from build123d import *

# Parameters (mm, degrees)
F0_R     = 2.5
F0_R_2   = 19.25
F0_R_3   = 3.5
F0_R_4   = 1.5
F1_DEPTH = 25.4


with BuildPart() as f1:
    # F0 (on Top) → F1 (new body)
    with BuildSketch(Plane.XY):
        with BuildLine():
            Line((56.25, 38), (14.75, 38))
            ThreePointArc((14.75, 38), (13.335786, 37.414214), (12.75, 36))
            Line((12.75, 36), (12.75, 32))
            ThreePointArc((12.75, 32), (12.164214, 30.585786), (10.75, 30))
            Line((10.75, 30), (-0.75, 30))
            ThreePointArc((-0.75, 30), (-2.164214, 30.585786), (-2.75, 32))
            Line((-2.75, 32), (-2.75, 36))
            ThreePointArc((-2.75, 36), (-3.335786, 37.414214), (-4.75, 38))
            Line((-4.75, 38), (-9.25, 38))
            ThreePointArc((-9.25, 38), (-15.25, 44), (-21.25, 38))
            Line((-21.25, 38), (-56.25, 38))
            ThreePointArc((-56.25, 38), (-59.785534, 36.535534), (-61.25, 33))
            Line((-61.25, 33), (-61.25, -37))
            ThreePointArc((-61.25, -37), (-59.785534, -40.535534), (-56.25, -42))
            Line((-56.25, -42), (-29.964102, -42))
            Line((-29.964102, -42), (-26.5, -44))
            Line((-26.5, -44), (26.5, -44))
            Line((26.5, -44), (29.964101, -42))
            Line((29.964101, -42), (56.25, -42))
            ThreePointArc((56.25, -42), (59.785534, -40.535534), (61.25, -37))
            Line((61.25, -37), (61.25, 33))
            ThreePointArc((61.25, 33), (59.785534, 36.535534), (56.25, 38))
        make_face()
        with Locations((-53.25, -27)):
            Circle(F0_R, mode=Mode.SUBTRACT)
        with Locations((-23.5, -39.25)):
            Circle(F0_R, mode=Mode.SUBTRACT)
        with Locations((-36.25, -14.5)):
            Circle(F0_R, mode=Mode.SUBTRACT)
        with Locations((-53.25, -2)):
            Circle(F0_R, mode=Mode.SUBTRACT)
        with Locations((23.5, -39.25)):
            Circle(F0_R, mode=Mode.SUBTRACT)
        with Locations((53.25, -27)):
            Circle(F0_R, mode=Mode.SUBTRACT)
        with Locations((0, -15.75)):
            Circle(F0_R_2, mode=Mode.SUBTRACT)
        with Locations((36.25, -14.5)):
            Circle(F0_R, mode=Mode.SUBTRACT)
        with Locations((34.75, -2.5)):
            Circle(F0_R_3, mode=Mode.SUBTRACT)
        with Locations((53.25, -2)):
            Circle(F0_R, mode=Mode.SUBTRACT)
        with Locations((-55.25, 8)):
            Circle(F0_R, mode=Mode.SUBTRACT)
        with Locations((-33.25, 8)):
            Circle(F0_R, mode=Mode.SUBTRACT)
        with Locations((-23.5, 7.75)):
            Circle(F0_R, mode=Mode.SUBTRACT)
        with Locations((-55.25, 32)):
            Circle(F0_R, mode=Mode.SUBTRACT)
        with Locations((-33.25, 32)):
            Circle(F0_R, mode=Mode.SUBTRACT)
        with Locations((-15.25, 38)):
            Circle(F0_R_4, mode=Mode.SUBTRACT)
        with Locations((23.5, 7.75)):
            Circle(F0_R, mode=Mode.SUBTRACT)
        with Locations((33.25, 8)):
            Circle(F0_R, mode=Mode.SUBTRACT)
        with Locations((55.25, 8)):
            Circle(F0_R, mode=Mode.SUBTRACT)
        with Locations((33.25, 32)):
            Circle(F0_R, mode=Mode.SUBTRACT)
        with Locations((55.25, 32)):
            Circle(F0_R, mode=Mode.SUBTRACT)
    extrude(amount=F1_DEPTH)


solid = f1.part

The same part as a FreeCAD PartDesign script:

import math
import FreeCAD as App
import Part
import Sketcher

V = App.Vector
Q = App.Units.Quantity

doc = App.newDocument("Part")
params = doc.addObject("Spreadsheet::Sheet", "Params")
for row, (alias, value) in enumerate([
    ("sketch1_diameter", "5 mm"),
    ("sketch1_diameter2", "7 mm"),
    ("sketch1_diameter3", "3 mm"),
    ("sketch1_radius", "1.999999 mm"),
    ("sketch1_radius2", "6 mm"),
    ("pad1_length", "25.4 mm"),
], start=1):
    params.set(f"A{row}", alias)
    params.set(f"B{row}", "=" + value)
    params.setAlias(f"B{row}", alias)

body = doc.addObject("PartDesign::Body", "Body")

# Sketch on XY plane
sketch1 = body.newObject("Sketcher::SketchObject", "Sketch")
sketch1.AttachmentSupport = (doc.getObject("XY_Plane"), [""])
sketch1.MapMode = "FlatFace"
sketch1.addGeometry(Part.LineSegment(V(56.25, 38, 0), V(14.75, 38, 0)), False)
sketch1.addGeometry(Part.ArcOfCircle(Part.Circle(V(14.749999, 36.000001, 0), V(0, 0, 1), 1.999999), math.radians(89.999957), math.radians(180.000043)), False)
sketch1.addGeometry(Part.LineSegment(V(12.75, 36, 0), V(12.75, 32, 0)), False)
sketch1.addGeometry(Part.ArcOfCircle(Part.Circle(V(10.750001, 31.999999, 0), V(0, 0, 1), 1.999999), math.radians(-90.000043), math.radians(0.000043)), False)
sketch1.addGeometry(Part.LineSegment(V(10.75, 30, 0), V(-0.75, 30, 0)), False)
sketch1.addGeometry(Part.ArcOfCircle(Part.Circle(V(-0.750001, 31.999999, 0), V(0, 0, 1), 1.999999), math.radians(179.999957), math.radians(270.000043)), False)
sketch1.addGeometry(Part.LineSegment(V(-2.75, 32, 0), V(-2.75, 36, 0)), False)
sketch1.addGeometry(Part.ArcOfCircle(Part.Circle(V(-4.749999, 36.000001, 0), V(0, 0, 1), 1.999999), math.radians(-0.000043), math.radians(90.000043)), False)
sketch1.addGeometry(Part.LineSegment(V(-4.75, 38, 0), V(-9.25, 38, 0)), False)
sketch1.addGeometry(Part.ArcOfCircle(Part.Circle(V(-15.25, 38, 0), V(0, 0, 1), 6), math.radians(0), math.radians(180)), False)
sketch1.addGeometry(Part.LineSegment(V(-21.25, 38, 0), V(-56.25, 38, 0)), False)
sketch1.addGeometry(Part.ArcOfCircle(Part.Circle(V(-56.25, 33, 0), V(0, 0, 1), 5), math.radians(89.999996), math.radians(180.000004)), False)
sketch1.addGeometry(Part.LineSegment(V(-61.25, 33, 0), V(-61.25, -37, 0)), False)
sketch1.addGeometry(Part.ArcOfCircle(Part.Circle(V(-56.25, -37, 0), V(0, 0, 1), 5), math.radians(179.999996), math.radians(270.000004)), False)
sketch1.addGeometry(Part.LineSegment(V(-56.25, -42, 0), V(-29.964102, -42, 0)), False)
sketch1.addGeometry(Part.LineSegment(V(-29.964102, -42, 0), V(-26.5, -44, 0)), False)
sketch1.addGeometry(Part.LineSegment(V(-26.5, -44, 0), V(26.5, -44, 0)), False)
sketch1.addGeometry(Part.LineSegment(V(26.5, -44, 0), V(29.964101, -42, 0)), False)
sketch1.addGeometry(Part.LineSegment(V(29.964101, -42, 0), V(56.25, -42, 0)), False)
sketch1.addGeometry(Part.ArcOfCircle(Part.Circle(V(56.25, -37, 0), V(0, 0, 1), 5), math.radians(-90.000004), math.radians(0.000004)), False)
sketch1.addGeometry(Part.LineSegment(V(61.25, -37, 0), V(61.25, 33, 0)), False)
sketch1.addGeometry(Part.ArcOfCircle(Part.Circle(V(56.25, 33, 0), V(0, 0, 1), 5), math.radians(-0.000004), math.radians(90.000004)), False)
sketch1.addGeometry(Part.Circle(V(-53.25, -27, 0), V(0, 0, 1), 2.5), False)
sketch1.addGeometry(Part.Circle(V(-23.5, -39.25, 0), V(0, 0, 1), 2.5), False)
sketch1.addGeometry(Part.Circle(V(-36.25, -14.5, 0), V(0, 0, 1), 2.5), False)
sketch1.addGeometry(Part.Circle(V(-53.25, -2, 0), V(0, 0, 1), 2.5), False)
sketch1.addGeometry(Part.Circle(V(23.5, -39.25, 0), V(0, 0, 1), 2.5), False)
sketch1.addGeometry(Part.Circle(V(53.25, -27, 0), V(0, 0, 1), 2.5), False)
sketch1.addGeometry(Part.Circle(V(0, -15.75, 0), V(0, 0, 1), 19.25), False)
sketch1.addGeometry(Part.Circle(V(36.25, -14.5, 0), V(0, 0, 1), 2.5), False)
sketch1.addGeometry(Part.Circle(V(34.75, -2.5, 0), V(0, 0, 1), 3.5), False)
sketch1.addGeometry(Part.Circle(V(53.25, -2, 0), V(0, 0, 1), 2.5), False)
sketch1.addGeometry(Part.Circle(V(-55.25, 8, 0), V(0, 0, 1), 2.5), False)
sketch1.addGeometry(Part.Circle(V(-33.25, 8, 0), V(0, 0, 1), 2.5), False)
sketch1.addGeometry(Part.Circle(V(-23.5, 7.75, 0), V(0, 0, 1), 2.5), False)
sketch1.addGeometry(Part.Circle(V(-55.25, 32, 0), V(0, 0, 1), 2.5), False)
sketch1.addGeometry(Part.Circle(V(-33.25, 32, 0), V(0, 0, 1), 2.5), False)
sketch1.addGeometry(Part.Circle(V(-15.25, 38, 0), V(0, 0, 1), 1.5), False)
sketch1.addGeometry(Part.Circle(V(23.5, 7.75, 0), V(0, 0, 1), 2.5), False)
sketch1.addGeometry(Part.Circle(V(33.25, 8, 0), V(0, 0, 1), 2.5), False)
sketch1.addGeometry(Part.Circle(V(55.25, 8, 0), V(0, 0, 1), 2.5), False)
sketch1.addGeometry(Part.Circle(V(33.25, 32, 0), V(0, 0, 1), 2.5), False)
sketch1.addGeometry(Part.Circle(V(55.25, 32, 0), V(0, 0, 1), 2.5), False)
sketch1.addConstraint(Sketcher.Constraint("Tangent", 0, 2, 1, 1))
sketch1.addConstraint(Sketcher.Constraint("Tangent", 1, 2, 2, 1))
sketch1.addConstraint(Sketcher.Constraint("Tangent", 2, 2, 3, 2))
sketch1.addConstraint(Sketcher.Constraint("Tangent", 3, 1, 4, 1))
sketch1.addConstraint(Sketcher.Constraint("Tangent", 4, 2, 5, 2))
sketch1.addConstraint(Sketcher.Constraint("Tangent", 5, 1, 6, 1))
sketch1.addConstraint(Sketcher.Constraint("Tangent", 6, 2, 7, 1))
sketch1.addConstraint(Sketcher.Constraint("Tangent", 7, 2, 8, 1))
sketch1.addConstraint(Sketcher.Constraint("Coincident", 8, 2, 9, 1))
sketch1.addConstraint(Sketcher.Constraint("Coincident", 9, 2, 10, 1))
sketch1.addConstraint(Sketcher.Constraint("Tangent", 10, 2, 11, 1))
sketch1.addConstraint(Sketcher.Constraint("Tangent", 11, 2, 12, 1))
sketch1.addConstraint(Sketcher.Constraint("Tangent", 12, 2, 13, 1))
sketch1.addConstraint(Sketcher.Constraint("Tangent", 13, 2, 14, 1))
sketch1.addConstraint(Sketcher.Constraint("Coincident", 14, 2, 15, 1))
sketch1.addConstraint(Sketcher.Constraint("Coincident", 15, 2, 16, 1))
sketch1.addConstraint(Sketcher.Constraint("Coincident", 16, 2, 17, 1))
sketch1.addConstraint(Sketcher.Constraint("Coincident", 17, 2, 18, 1))
sketch1.addConstraint(Sketcher.Constraint("Tangent", 18, 2, 19, 1))
sketch1.addConstraint(Sketcher.Constraint("Tangent", 19, 2, 20, 1))
sketch1.addConstraint(Sketcher.Constraint("Tangent", 20, 2, 21, 1))
sketch1.addConstraint(Sketcher.Constraint("Tangent", 21, 2, 0, 1))
sketch1.addConstraint(Sketcher.Constraint("Horizontal", 0))
sketch1.addConstraint(Sketcher.Constraint("Vertical", 2))
sketch1.addConstraint(Sketcher.Constraint("Horizontal", 4))
sketch1.addConstraint(Sketcher.Constraint("Vertical", 6))
sketch1.addConstraint(Sketcher.Constraint("Horizontal", 8))
sketch1.addConstraint(Sketcher.Constraint("Horizontal", 10))
sketch1.addConstraint(Sketcher.Constraint("Vertical", 12))
sketch1.addConstraint(Sketcher.Constraint("Horizontal", 14))
sketch1.addConstraint(Sketcher.Constraint("Horizontal", 16))
sketch1.addConstraint(Sketcher.Constraint("Horizontal", 18))
sketch1.addConstraint(Sketcher.Constraint("Vertical", 20))
sketch1.addConstraint(Sketcher.Constraint("Coincident", 37, 3, 9, 3))
sketch1.addConstraint(Sketcher.Constraint("Equal", 1, 3))
sketch1.addConstraint(Sketcher.Constraint("Equal", 3, 5))
sketch1.addConstraint(Sketcher.Constraint("Equal", 5, 7))
sketch1.addConstraint(Sketcher.Constraint("Equal", 11, 13))
sketch1.addConstraint(Sketcher.Constraint("Equal", 13, 19))
sketch1.addConstraint(Sketcher.Constraint("Equal", 19, 21))
sketch1.addConstraint(Sketcher.Constraint("Equal", 22, 23))
sketch1.addConstraint(Sketcher.Constraint("Equal", 23, 24))
sketch1.addConstraint(Sketcher.Constraint("Equal", 24, 25))
sketch1.addConstraint(Sketcher.Constraint("Equal", 25, 26))
sketch1.addConstraint(Sketcher.Constraint("Equal", 26, 27))
sketch1.addConstraint(Sketcher.Constraint("Equal", 27, 29))
sketch1.addConstraint(Sketcher.Constraint("Equal", 29, 31))
sketch1.addConstraint(Sketcher.Constraint("Equal", 31, 32))
sketch1.addConstraint(Sketcher.Constraint("Equal", 32, 33))
sketch1.addConstraint(Sketcher.Constraint("Equal", 33, 34))
sketch1.addConstraint(Sketcher.Constraint("Equal", 34, 35))
sketch1.addConstraint(Sketcher.Constraint("Equal", 35, 36))
sketch1.addConstraint(Sketcher.Constraint("Equal", 36, 38))
sketch1.addConstraint(Sketcher.Constraint("Equal", 38, 39))
sketch1.addConstraint(Sketcher.Constraint("Equal", 39, 40))
sketch1.addConstraint(Sketcher.Constraint("Equal", 40, 41))
sketch1.addConstraint(Sketcher.Constraint("Equal", 41, 42))
sketch1.addConstraint(Sketcher.Constraint("Symmetric", 13, 3, 19, 3, -2))
sketch1.addConstraint(Sketcher.Constraint("Symmetric", 23, 3, 26, 3, -2))
sketch1.addConstraint(Sketcher.Constraint("Symmetric", 22, 3, 27, 3, -2))
sketch1.addConstraint(Sketcher.Constraint("Symmetric", 24, 3, 29, 3, -2))
sketch1.addConstraint(Sketcher.Constraint("Symmetric", 25, 3, 31, 3, -2))
sketch1.addConstraint(Sketcher.Constraint("Symmetric", 34, 3, 38, 3, -2))
sketch1.addConstraint(Sketcher.Constraint("Symmetric", 33, 3, 39, 3, -2))
sketch1.addConstraint(Sketcher.Constraint("Symmetric", 32, 3, 40, 3, -2))
sketch1.addConstraint(Sketcher.Constraint("Symmetric", 36, 3, 41, 3, -2))
sketch1.addConstraint(Sketcher.Constraint("Symmetric", 35, 3, 42, 3, -2))
sketch1.addConstraint(Sketcher.Constraint("PointOnObject", 28, 3, -2))
sketch1.addConstraint(Sketcher.Constraint("Horizontal", 1, 3, 7, 3))
sketch1.addConstraint(Sketcher.Constraint("Horizontal", 11, 3, 21, 3))
sketch1.addConstraint(Sketcher.Constraint("Horizontal", 32, 3, 33, 3))
sketch1.addConstraint(Sketcher.Constraint("Horizontal", 5, 3, 35, 3))
sketch1.addConstraint(Sketcher.Constraint("Horizontal", 35, 3, 36, 3))
sketch1.addConstraint(Sketcher.Constraint("Horizontal", 37, 3, 0, 2))
sketch1.addConstraint(Sketcher.Constraint("Vertical", 22, 3, 25, 3))
sketch1.addConstraint(Sketcher.Constraint("Vertical", 23, 3, 34, 3))
sketch1.addConstraint(Sketcher.Constraint("Vertical", 32, 3, 35, 3))
sketch1.addConstraint(Sketcher.Constraint("Vertical", 33, 3, 36, 3))
sketch1.addConstraint(Sketcher.Constraint("Equal", 14, 18))
sketch1.addConstraint(Sketcher.Constraint("Equal", 15, 17))
sketch1.addConstraint(Sketcher.Constraint("Diameter", 22, Q("5 mm")))
sketch1.addConstraint(Sketcher.Constraint("Diameter", 30, Q("7 mm")))
sketch1.addConstraint(Sketcher.Constraint("Diameter", 37, Q("3 mm")))
sketch1.addConstraint(Sketcher.Constraint("Radius", 1, Q("1.999999 mm")))
sketch1.addConstraint(Sketcher.Constraint("Radius", 9, Q("6 mm")))
sketch1.addConstraint(Sketcher.Constraint("Radius", 11, Q("5 mm")))
sketch1.addConstraint(Sketcher.Constraint("Diameter", 28, Q("38.5 mm")))
sketch1.addConstraint(Sketcher.Constraint("DistanceX", 10, 2, 10, 1, Q("35 mm")))
sketch1.addConstraint(Sketcher.Constraint("DistanceX", 16, 1, 16, 2, Q("53 mm")))
sketch1.addConstraint(Sketcher.Constraint("DistanceY", 2, 2, 2, 1, Q("4 mm")))
sketch1.addConstraint(Sketcher.Constraint("DistanceY", 12, 2, 12, 1, Q("70 mm")))
sketch1.addConstraint(Sketcher.Constraint("Angle", 15, Q("-29.999997 deg")))
sketch1.addConstraint(Sketcher.Constraint("Distance", 15, Q("4 mm")))
sketch1.addConstraint(Sketcher.Constraint("DistanceX", 0, 2, 0, 1, Q("41.5 mm")))
sketch1.addConstraint(Sketcher.Constraint("DistanceX", 4, 2, 4, 1, Q("11.5 mm")))
sketch1.addConstraint(Sketcher.Constraint("DistanceX", 8, 2, 8, 1, Q("4.5 mm")))
sketch1.addConstraint(Sketcher.Constraint("DistanceY", -1, 1, 1, 3, Q("36.000001 mm")))
sketch1.addConstraint(Sketcher.Constraint("DistanceY", 22, 3, -1, 1, Q("27 mm")))
sketch1.addConstraint(Sketcher.Constraint("DistanceY", 25, 3, -1, 1, Q("2 mm")))
sketch1.addConstraint(Sketcher.Constraint("DistanceY", -1, 1, 32, 3, Q("8 mm")))
sketch1.addConstraint(Sketcher.Constraint("DistanceX", 13, 3, 22, 3, Q("3 mm")))
sketch1.addConstraint(Sketcher.Constraint("DistanceX", 22, 3, 24, 3, Q("17 mm")))
sketch1.addConstraint(Sketcher.Constraint("DistanceX", 23, 3, 26, 3, Q("47 mm")))
sketch1.addConstraint(Sketcher.Constraint("DistanceY", 29, 3, 30, 3, Q("12 mm")))
sketch1.addConstraint(Sketcher.Constraint("DistanceX", 32, 3, 25, 3, Q("2 mm")))
sketch1.addConstraint(Sketcher.Constraint("DistanceX", 32, 3, 33, 3, Q("22 mm")))
sketch1.addConstraint(Sketcher.Constraint("DistanceY", 24, 3, -1, 1, Q("14.5 mm")))
sketch1.addConstraint(Sketcher.Constraint("DistanceY", 23, 3, 28, 3, Q("23.5 mm")))
sketch1.addConstraint(Sketcher.Constraint("DistanceX", 30, 3, 29, 3, Q("1.5 mm")))
sketch1.addConstraint(Sketcher.Constraint("DistanceY", 23, 3, -1, 1, Q("39.25 mm")))
sketch1.addConstraint(Sketcher.Constraint("DistanceY", -1, 1, 34, 3, Q("7.75 mm")))
sketch1.setExpression("Constraints[80]", "Params.sketch1_diameter")
sketch1.setExpression("Constraints[81]", "Params.sketch1_diameter2")
sketch1.setExpression("Constraints[82]", "Params.sketch1_diameter3")
sketch1.setExpression("Constraints[83]", "Params.sketch1_radius")
sketch1.setExpression("Constraints[84]", "Params.sketch1_radius2")
pad1 = body.newObject("PartDesign::Pad", "Pad")
pad1.Profile = sketch1
pad1.setExpression("Length", "Params.pad1_length")

doc.recompute()
